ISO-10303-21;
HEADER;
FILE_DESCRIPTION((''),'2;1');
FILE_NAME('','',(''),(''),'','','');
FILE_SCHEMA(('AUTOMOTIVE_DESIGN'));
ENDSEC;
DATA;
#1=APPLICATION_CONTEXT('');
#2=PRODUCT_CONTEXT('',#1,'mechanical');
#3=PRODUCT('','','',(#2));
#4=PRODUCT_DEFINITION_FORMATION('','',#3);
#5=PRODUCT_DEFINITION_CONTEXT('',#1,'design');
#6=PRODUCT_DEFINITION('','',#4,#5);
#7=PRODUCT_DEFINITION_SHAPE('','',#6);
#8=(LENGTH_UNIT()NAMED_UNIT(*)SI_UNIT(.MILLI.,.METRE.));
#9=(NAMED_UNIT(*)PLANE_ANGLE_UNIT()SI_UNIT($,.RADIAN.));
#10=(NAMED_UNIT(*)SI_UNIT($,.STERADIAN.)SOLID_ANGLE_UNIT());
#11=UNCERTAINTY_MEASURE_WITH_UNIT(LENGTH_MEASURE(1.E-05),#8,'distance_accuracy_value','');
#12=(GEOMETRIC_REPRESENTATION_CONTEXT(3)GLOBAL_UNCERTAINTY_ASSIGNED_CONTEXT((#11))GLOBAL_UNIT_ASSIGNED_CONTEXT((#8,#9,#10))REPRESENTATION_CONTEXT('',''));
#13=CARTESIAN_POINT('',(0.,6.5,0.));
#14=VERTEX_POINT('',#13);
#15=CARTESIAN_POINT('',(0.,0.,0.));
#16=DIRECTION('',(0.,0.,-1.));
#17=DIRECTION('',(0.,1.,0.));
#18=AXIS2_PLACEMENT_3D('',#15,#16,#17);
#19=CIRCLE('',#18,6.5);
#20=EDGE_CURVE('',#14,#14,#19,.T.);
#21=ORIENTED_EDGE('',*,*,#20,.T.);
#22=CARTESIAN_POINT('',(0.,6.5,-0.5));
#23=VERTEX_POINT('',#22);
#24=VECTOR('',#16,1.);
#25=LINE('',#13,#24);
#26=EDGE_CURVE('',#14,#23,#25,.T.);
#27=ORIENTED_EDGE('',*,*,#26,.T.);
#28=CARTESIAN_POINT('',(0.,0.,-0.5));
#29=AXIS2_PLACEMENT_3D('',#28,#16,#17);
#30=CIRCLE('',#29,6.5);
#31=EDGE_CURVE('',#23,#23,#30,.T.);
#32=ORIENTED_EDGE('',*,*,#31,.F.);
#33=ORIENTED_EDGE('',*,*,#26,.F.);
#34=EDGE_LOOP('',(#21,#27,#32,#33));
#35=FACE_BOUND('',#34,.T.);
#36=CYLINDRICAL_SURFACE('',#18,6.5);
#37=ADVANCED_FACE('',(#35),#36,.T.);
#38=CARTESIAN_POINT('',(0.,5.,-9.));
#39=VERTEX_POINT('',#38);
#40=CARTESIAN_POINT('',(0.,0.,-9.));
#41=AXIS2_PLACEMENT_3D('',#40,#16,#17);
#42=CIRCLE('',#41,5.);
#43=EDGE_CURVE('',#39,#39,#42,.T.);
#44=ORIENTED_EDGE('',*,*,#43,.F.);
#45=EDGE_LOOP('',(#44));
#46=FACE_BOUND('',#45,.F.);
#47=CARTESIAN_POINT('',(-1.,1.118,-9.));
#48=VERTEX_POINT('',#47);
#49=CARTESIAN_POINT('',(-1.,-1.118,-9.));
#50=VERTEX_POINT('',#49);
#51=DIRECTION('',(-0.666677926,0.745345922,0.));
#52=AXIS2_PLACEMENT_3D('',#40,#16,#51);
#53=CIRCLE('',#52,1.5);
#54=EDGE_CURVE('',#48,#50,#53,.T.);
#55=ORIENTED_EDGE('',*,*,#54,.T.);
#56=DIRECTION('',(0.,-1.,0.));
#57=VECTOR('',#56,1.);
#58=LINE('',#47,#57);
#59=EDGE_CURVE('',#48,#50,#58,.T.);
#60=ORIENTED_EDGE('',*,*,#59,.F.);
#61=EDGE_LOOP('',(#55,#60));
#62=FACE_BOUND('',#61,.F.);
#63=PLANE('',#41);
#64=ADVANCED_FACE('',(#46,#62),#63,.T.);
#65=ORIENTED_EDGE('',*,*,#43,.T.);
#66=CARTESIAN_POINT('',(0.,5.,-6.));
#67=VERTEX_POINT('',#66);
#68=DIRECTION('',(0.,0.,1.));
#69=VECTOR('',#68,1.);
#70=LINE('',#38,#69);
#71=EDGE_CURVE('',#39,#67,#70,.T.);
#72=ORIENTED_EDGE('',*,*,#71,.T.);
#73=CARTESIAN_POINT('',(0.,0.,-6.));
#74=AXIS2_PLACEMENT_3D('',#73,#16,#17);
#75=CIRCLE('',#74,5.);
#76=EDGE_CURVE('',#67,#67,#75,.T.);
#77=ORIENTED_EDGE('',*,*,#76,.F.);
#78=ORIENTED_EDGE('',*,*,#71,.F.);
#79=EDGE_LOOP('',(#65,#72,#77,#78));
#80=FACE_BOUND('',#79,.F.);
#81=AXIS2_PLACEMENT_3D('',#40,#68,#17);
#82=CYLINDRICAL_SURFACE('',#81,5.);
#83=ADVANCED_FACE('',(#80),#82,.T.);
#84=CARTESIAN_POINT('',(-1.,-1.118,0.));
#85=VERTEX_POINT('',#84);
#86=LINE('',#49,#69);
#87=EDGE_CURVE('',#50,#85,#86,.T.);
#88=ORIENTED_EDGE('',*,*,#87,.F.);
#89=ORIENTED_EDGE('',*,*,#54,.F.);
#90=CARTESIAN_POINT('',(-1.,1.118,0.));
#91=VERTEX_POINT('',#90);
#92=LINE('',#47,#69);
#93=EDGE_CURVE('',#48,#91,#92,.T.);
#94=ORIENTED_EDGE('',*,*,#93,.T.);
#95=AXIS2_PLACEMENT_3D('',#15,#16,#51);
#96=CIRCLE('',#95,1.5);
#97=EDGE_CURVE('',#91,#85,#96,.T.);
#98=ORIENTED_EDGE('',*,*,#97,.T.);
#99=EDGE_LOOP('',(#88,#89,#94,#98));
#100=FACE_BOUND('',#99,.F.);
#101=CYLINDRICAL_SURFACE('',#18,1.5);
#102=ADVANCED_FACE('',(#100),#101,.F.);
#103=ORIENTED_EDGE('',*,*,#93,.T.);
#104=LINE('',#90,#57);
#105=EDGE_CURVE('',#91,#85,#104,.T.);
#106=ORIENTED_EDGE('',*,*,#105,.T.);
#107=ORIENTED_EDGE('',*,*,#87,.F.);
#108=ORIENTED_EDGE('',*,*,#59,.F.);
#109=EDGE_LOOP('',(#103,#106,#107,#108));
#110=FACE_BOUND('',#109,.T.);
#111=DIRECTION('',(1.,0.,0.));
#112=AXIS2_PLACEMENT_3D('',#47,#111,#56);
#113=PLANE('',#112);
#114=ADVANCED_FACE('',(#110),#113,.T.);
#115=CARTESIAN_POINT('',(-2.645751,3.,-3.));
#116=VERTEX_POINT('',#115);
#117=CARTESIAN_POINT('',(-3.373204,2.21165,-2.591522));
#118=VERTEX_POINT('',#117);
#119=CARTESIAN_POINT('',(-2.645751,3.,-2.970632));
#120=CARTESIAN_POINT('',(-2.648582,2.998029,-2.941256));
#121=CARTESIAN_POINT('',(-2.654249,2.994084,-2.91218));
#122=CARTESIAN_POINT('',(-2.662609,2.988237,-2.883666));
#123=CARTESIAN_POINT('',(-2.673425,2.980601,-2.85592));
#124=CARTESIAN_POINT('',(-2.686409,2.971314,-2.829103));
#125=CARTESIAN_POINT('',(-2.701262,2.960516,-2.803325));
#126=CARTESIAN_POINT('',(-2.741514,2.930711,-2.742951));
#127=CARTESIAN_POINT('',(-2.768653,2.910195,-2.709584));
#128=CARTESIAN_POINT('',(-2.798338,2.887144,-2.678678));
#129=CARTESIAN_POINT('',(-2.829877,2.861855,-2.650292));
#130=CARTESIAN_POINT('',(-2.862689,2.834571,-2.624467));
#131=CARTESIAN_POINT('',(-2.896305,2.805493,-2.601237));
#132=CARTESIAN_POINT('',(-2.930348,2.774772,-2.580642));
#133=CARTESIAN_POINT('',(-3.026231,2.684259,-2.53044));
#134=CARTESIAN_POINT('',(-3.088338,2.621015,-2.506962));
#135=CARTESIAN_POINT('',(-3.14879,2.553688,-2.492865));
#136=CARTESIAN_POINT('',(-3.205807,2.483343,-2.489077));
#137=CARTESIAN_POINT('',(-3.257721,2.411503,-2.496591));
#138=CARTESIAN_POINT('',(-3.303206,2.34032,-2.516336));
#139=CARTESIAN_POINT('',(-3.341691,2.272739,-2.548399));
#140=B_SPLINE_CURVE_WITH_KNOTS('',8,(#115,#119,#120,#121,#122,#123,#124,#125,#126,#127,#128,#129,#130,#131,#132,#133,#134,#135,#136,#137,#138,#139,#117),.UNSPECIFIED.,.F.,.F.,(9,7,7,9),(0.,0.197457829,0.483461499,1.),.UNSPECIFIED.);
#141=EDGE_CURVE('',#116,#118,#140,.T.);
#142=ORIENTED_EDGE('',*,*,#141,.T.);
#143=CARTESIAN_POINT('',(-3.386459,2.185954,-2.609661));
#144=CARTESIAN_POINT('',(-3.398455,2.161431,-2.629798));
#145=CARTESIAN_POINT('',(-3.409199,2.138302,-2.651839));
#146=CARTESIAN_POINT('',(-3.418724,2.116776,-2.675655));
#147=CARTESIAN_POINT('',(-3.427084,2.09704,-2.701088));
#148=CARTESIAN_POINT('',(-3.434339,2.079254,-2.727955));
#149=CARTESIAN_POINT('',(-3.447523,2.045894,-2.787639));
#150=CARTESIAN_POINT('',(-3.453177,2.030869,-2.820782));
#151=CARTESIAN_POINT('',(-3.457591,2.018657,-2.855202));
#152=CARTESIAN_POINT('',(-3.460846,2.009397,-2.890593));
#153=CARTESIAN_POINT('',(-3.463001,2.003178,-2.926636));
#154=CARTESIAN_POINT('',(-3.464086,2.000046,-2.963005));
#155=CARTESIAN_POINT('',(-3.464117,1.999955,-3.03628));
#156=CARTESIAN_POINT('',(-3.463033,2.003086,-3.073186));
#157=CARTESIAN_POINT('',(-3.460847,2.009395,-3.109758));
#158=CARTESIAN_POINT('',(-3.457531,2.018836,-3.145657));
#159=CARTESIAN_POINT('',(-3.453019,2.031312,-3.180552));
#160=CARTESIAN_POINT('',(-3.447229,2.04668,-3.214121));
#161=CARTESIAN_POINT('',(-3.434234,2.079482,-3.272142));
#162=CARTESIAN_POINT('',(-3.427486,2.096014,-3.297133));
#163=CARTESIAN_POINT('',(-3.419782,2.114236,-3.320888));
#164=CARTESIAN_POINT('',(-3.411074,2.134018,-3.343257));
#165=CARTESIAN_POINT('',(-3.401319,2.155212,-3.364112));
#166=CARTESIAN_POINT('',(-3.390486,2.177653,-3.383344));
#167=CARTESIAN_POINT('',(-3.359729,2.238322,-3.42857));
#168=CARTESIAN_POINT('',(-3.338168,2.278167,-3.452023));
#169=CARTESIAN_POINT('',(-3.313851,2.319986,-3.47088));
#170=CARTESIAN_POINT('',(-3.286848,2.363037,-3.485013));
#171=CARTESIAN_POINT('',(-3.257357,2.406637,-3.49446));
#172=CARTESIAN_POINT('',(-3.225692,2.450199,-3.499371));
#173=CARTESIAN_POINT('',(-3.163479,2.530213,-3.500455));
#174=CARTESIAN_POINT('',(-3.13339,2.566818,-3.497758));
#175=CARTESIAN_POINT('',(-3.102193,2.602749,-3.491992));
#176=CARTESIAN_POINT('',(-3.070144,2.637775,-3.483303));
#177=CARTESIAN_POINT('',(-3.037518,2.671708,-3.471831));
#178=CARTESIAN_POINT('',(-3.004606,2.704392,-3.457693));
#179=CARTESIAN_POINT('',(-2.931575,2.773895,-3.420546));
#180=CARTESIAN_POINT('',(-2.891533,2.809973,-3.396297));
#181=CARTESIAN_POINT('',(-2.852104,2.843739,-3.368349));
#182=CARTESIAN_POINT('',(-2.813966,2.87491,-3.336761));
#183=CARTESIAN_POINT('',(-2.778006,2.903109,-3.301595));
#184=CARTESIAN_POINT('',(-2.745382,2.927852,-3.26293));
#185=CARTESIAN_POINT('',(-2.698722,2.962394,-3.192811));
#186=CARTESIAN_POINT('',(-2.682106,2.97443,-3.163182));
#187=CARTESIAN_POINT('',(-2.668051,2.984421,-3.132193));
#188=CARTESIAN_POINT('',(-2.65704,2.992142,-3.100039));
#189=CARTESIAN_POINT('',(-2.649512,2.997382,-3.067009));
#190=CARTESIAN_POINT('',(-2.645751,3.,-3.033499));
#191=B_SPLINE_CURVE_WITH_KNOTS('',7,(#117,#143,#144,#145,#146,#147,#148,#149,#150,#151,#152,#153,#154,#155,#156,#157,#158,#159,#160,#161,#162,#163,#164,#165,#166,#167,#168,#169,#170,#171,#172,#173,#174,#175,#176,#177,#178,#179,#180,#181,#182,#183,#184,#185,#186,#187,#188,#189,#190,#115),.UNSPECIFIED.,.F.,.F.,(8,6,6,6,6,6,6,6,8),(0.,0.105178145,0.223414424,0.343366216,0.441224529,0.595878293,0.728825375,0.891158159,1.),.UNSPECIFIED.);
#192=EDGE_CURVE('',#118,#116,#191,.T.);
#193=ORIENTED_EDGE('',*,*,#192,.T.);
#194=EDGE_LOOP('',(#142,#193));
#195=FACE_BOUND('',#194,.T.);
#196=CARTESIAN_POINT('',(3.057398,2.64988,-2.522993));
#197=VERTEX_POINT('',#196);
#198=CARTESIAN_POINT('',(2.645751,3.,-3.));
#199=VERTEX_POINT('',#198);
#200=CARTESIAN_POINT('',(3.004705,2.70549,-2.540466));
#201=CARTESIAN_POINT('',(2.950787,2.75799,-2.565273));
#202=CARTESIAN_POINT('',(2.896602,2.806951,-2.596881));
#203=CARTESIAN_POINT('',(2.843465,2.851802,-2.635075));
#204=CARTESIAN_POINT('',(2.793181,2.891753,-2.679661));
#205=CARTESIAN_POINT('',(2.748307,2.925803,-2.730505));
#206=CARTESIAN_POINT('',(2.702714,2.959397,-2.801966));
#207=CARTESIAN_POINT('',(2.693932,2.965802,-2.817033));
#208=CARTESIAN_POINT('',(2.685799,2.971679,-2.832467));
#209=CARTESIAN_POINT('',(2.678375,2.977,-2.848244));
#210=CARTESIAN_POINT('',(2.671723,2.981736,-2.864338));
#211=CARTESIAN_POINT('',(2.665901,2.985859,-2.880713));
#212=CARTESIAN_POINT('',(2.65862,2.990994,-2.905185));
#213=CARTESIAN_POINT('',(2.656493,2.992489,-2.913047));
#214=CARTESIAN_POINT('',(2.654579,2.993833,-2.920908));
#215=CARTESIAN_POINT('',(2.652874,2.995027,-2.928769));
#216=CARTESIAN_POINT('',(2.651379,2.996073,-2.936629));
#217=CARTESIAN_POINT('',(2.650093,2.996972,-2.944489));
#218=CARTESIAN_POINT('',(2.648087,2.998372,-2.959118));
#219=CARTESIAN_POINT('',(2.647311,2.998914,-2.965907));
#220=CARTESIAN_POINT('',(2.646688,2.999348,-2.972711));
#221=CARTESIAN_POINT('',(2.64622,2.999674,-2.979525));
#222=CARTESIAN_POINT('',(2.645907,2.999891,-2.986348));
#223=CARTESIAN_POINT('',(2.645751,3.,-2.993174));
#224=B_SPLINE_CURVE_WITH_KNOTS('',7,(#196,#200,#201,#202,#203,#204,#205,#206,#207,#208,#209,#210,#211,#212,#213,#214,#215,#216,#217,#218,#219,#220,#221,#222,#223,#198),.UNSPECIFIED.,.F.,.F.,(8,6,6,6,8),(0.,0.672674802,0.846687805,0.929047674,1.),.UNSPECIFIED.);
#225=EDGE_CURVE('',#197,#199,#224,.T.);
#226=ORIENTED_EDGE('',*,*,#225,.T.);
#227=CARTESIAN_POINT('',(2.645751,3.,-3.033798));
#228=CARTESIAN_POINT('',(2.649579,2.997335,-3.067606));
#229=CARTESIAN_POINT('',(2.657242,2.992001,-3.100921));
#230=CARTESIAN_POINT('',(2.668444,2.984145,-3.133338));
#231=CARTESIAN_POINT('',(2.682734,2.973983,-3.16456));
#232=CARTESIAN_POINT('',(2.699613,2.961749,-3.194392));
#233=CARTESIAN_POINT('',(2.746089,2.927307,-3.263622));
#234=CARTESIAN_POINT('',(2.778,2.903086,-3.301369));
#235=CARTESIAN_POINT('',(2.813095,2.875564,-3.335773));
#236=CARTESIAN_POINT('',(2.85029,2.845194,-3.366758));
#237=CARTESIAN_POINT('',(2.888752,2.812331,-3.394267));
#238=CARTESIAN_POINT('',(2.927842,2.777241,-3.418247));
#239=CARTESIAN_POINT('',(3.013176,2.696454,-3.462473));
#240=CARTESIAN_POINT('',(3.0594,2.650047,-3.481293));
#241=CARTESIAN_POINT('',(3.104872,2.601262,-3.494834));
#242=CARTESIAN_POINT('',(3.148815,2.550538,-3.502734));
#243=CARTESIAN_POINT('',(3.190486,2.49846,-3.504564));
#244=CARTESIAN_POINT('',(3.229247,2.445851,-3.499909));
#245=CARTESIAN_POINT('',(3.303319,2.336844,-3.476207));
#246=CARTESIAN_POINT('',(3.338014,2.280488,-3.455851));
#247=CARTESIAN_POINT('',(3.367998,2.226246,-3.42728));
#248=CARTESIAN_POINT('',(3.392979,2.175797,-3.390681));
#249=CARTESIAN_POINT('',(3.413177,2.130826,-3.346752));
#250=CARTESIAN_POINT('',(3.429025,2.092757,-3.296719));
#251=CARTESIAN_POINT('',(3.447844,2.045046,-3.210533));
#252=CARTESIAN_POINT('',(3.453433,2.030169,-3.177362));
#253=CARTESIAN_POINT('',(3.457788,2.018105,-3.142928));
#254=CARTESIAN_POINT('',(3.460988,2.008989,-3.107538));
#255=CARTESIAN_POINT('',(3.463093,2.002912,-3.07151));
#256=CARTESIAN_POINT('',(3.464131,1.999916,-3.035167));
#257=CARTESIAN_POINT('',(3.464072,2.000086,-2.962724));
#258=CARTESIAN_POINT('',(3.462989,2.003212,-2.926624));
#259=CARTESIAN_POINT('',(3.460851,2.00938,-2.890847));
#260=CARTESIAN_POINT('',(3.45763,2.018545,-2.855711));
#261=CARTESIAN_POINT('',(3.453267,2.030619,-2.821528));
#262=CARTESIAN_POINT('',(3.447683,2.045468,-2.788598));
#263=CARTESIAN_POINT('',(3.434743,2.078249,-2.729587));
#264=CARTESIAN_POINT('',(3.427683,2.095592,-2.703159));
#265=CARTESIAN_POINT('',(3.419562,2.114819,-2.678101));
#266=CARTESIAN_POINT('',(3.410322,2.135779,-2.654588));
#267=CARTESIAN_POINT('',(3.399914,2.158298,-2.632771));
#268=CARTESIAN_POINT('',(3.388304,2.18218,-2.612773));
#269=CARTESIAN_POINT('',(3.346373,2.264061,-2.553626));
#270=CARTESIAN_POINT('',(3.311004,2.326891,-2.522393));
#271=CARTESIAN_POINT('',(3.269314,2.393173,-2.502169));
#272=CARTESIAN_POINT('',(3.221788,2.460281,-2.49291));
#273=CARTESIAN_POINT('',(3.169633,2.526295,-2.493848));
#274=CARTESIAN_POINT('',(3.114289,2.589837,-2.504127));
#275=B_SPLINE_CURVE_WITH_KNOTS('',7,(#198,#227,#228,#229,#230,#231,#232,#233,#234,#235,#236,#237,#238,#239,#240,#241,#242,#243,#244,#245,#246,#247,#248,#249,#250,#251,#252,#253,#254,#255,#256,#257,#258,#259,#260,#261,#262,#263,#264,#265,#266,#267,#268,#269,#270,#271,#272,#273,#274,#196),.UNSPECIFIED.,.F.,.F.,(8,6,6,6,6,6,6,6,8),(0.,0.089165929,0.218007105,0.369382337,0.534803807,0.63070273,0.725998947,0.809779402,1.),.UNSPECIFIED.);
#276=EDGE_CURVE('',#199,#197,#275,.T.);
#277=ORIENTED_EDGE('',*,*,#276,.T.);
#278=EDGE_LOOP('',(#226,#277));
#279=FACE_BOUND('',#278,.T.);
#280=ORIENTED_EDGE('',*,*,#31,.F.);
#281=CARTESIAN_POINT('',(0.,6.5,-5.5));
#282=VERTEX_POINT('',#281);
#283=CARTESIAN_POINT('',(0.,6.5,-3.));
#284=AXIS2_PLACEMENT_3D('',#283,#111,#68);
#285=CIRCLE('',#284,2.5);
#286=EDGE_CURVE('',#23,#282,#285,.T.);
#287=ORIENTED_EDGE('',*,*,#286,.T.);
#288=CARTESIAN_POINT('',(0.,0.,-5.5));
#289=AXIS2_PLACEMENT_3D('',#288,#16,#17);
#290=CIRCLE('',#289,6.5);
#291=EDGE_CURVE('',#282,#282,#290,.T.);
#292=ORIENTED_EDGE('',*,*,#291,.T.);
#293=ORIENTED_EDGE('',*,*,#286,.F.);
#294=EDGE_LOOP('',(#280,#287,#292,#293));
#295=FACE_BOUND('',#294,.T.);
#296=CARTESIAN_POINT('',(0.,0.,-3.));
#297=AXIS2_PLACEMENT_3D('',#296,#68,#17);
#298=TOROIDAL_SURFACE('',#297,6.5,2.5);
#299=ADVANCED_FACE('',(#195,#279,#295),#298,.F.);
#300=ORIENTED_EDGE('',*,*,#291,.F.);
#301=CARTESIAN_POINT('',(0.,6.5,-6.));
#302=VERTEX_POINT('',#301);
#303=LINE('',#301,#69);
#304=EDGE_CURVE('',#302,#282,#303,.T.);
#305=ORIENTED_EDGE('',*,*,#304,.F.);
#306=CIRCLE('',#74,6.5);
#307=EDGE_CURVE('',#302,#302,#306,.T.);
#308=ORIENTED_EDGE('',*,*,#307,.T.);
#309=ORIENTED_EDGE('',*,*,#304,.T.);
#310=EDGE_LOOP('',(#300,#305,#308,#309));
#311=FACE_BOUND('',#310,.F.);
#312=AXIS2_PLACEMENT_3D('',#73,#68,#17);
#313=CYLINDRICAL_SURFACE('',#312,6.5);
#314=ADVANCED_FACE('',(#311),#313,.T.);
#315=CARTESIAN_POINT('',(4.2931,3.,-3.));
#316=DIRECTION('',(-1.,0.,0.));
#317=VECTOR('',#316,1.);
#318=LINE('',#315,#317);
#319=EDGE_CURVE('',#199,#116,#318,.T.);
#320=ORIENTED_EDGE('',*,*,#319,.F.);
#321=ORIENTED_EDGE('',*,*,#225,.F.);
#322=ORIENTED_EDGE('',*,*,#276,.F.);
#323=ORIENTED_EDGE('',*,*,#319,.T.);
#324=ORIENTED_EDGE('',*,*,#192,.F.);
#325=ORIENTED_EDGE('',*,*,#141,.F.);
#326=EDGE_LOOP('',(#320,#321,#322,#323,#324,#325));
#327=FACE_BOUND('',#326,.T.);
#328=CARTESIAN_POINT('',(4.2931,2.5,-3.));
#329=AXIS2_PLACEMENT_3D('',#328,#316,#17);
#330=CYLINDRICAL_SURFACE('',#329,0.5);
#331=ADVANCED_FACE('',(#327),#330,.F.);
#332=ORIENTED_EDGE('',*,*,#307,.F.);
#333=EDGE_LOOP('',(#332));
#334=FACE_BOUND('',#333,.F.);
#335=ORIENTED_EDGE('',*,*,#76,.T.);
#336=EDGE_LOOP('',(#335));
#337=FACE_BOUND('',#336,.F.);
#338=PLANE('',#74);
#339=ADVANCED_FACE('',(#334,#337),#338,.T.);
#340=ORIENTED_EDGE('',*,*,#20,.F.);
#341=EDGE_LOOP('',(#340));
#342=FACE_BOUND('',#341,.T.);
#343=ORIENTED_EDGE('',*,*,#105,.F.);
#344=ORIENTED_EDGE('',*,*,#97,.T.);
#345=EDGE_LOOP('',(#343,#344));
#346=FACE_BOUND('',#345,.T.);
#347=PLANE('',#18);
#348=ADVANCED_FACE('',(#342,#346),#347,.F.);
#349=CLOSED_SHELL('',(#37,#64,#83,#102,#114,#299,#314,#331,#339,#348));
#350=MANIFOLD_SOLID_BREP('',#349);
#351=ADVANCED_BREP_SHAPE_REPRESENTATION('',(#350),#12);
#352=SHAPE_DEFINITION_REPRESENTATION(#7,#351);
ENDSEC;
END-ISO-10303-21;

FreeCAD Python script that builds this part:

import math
import FreeCAD as App
import Part
import Sketcher


def add_polygon(sketch, points):
    """Adds a closed chain of lines whose ends are joined by coincident constraints."""
    first, n = sketch.GeometryCount, len(points)
    for a, b in zip(points, points[1:] + points[:1]):
        sketch.addGeometry(Part.LineSegment(App.Vector(*a, 0), App.Vector(*b, 0)), False)
    for i in range(n):
        sketch.addConstraint(Sketcher.Constraint("Coincident", first + i, 2, first + (i + 1) % n, 1))

doc = App.newDocument("Part")
body = doc.addObject("PartDesign::Body", "Body")

# Sketch on YZ plane
sketch1 = body.newObject("Sketcher::SketchObject", "Sketch")
sketch1.AttachmentSupport = (doc.getObject("YZ_Plane"), [""])
sketch1.MapMode = "FlatFace"
sketch1.addGeometry([
    Part.LineSegment(App.Vector(6.5, 0, 0), App.Vector(1.5, 0, 0)),  # 0
    Part.LineSegment(App.Vector(1.5, 0, 0), App.Vector(1.5, -9, 0)),  # 1
    Part.LineSegment(App.Vector(1.5, -9, 0), App.Vector(5, -9, 0)),  # 2
    Part.LineSegment(App.Vector(5, -9, 0), App.Vector(5, -6, 0)),  # 3
    Part.LineSegment(App.Vector(5, -6, 0), App.Vector(6.5, -6, 0)),  # 4
    Part.LineSegment(App.Vector(6.5, -6, 0), App.Vector(6.5, -5.5, 0)),  # 5
    Part.ArcOfCircle(Part.Circle(App.Vector(6.5, -3, 0), App.Vector(0, 0, 1), 2.5), math.radians(90), math.radians(270)),  # 6
    Part.LineSegment(App.Vector(6.5, -0.5, 0), App.Vector(6.5, 0, 0)),  # 7
], False)
sketch1.addConstraint([
    Sketcher.Constraint("Coincident", 0, 2, 1, 1),
    Sketcher.Constraint("Coincident", 1, 2, 2, 1),
    Sketcher.Constraint("Coincident", 2, 2, 3, 1),
    Sketcher.Constraint("Coincident", 3, 2, 4, 1),
    Sketcher.Constraint("Coincident", 4, 2, 5, 1),
    Sketcher.Constraint("Coincident", 5, 2, 6, 2),
    Sketcher.Constraint("Coincident", 6, 1, 7, 1),
    Sketcher.Constraint("Coincident", 7, 2, 0, 1),
    Sketcher.Constraint("Horizontal", 0),
    Sketcher.Constraint("Vertical", 1),
    Sketcher.Constraint("Horizontal", 2),
    Sketcher.Constraint("Vertical", 3),
    Sketcher.Constraint("Horizontal", 4),
    Sketcher.Constraint("Vertical", 5),
    Sketcher.Constraint("Vertical", 7),
    Sketcher.Constraint("PointOnObject", 0, 2, -1),
    Sketcher.Constraint("Vertical", 6, 3, 4, 2),
    Sketcher.Constraint("Vertical", 5, 2, 6, 1),
    Sketcher.Constraint("Equal", 5, 7),
    Sketcher.Constraint("DistanceY", 1, 2, 1, 1, 9.0),
    Sketcher.Constraint("DistanceY", 3, 1, 3, 2, 3.0),
    Sketcher.Constraint("DistanceY", 5, 1, 5, 2, 0.5),
    Sketcher.Constraint("DistanceX", 0, 2, 0, 1, 5.0),
    Sketcher.Constraint("DistanceX", 2, 1, 2, 2, 3.5),
    Sketcher.Constraint("DistanceX", -1, 1, 2, 2, 5.0),
])
revolution = body.newObject("PartDesign::Revolution", "Revolution")
revolution.Profile = sketch1
revolution.ReferenceAxis = (sketch1, ["V_Axis"])
revolution.Angle = 360

# Sketch on XY plane
sketch2 = body.newObject("Sketcher::SketchObject", "Sketch001")
sketch2.AttachmentSupport = (doc.getObject("XY_Plane"), [""])
sketch2.MapMode = "FlatFace"
sketch2.AttachmentOffset = App.Placement(App.Vector(0, 0, -9), App.Rotation())
sketch2.addGeometry([
    Part.ArcOfCircle(Part.Circle(App.Vector(0, 0, 0), App.Vector(0, 0, 1), 1.5), math.radians(132), math.radians(228)),
    Part.LineSegment(App.Vector(-1, -1.1, 0), App.Vector(-1, 1.1, 0)),
], False)
sketch2.addConstraint([
    Sketcher.Constraint("Coincident", 0, 1, 1, 2),
    Sketcher.Constraint("Coincident", 1, 1, 0, 2),
    Sketcher.Constraint("Vertical", 1),
    Sketcher.Constraint("Coincident", 0, 3, -1, 1),
    Sketcher.Constraint("DistanceX", 0, 1, -1, 1, 1.0),
    Sketcher.Constraint("Radius", 0, 1.5),
])
pad1 = body.newObject("PartDesign::Pad", "Pad")
pad1.Profile = sketch2
pad1.Length = 9

# Sketch on XY plane
sketch3 = body.newObject("Sketcher::SketchObject", "Sketch002")
sketch3.AttachmentSupport = (doc.getObject("XY_Plane"), [""])
sketch3.MapMode = "FlatFace"
sketch3.AttachmentOffset = App.Placement(App.Vector(0, 0, -3), App.Rotation())
add_polygon(sketch3, [(-5.7, 2.5), (4.3, 2.5), (4.3, 3), (-5.7, 3)])  # lines 0-3
sketch3.addGeometry(Part.LineSegment(App.Vector(-5.7, 2.5, 0), App.Vector(4.3, 2.5, 0)), True)  # axis
sketch3.addConstraint([
    Sketcher.Constraint("Horizontal", 0),
    Sketcher.Constraint("Vertical", 1),
    Sketcher.Constraint("Horizontal", 2),
    Sketcher.Constraint("Vertical", 3),
    Sketcher.Constraint("Horizontal", 4),
    Sketcher.Constraint("Coincident", 4, 1, 3, 2),
    Sketcher.Constraint("Vertical", 1, 2, 4, 2),
    Sketcher.Constraint("DistanceX", 0, 1, 0, 2, 10.0),
    Sketcher.Constraint("DistanceY", 1, 1, 1, 2, 0.5),
    Sketcher.Constraint("DistanceY", -1, 1, 0, 2, 2.5),
    Sketcher.Constraint("DistanceX", -1, 1, 0, 2, 4.293),
])
groove = body.newObject("PartDesign::Groove", "Groove")
groove.Profile = sketch3
groove.ReferenceAxis = (sketch3, ["Axis0"])
groove.Angle = 360

doc.recompute()
